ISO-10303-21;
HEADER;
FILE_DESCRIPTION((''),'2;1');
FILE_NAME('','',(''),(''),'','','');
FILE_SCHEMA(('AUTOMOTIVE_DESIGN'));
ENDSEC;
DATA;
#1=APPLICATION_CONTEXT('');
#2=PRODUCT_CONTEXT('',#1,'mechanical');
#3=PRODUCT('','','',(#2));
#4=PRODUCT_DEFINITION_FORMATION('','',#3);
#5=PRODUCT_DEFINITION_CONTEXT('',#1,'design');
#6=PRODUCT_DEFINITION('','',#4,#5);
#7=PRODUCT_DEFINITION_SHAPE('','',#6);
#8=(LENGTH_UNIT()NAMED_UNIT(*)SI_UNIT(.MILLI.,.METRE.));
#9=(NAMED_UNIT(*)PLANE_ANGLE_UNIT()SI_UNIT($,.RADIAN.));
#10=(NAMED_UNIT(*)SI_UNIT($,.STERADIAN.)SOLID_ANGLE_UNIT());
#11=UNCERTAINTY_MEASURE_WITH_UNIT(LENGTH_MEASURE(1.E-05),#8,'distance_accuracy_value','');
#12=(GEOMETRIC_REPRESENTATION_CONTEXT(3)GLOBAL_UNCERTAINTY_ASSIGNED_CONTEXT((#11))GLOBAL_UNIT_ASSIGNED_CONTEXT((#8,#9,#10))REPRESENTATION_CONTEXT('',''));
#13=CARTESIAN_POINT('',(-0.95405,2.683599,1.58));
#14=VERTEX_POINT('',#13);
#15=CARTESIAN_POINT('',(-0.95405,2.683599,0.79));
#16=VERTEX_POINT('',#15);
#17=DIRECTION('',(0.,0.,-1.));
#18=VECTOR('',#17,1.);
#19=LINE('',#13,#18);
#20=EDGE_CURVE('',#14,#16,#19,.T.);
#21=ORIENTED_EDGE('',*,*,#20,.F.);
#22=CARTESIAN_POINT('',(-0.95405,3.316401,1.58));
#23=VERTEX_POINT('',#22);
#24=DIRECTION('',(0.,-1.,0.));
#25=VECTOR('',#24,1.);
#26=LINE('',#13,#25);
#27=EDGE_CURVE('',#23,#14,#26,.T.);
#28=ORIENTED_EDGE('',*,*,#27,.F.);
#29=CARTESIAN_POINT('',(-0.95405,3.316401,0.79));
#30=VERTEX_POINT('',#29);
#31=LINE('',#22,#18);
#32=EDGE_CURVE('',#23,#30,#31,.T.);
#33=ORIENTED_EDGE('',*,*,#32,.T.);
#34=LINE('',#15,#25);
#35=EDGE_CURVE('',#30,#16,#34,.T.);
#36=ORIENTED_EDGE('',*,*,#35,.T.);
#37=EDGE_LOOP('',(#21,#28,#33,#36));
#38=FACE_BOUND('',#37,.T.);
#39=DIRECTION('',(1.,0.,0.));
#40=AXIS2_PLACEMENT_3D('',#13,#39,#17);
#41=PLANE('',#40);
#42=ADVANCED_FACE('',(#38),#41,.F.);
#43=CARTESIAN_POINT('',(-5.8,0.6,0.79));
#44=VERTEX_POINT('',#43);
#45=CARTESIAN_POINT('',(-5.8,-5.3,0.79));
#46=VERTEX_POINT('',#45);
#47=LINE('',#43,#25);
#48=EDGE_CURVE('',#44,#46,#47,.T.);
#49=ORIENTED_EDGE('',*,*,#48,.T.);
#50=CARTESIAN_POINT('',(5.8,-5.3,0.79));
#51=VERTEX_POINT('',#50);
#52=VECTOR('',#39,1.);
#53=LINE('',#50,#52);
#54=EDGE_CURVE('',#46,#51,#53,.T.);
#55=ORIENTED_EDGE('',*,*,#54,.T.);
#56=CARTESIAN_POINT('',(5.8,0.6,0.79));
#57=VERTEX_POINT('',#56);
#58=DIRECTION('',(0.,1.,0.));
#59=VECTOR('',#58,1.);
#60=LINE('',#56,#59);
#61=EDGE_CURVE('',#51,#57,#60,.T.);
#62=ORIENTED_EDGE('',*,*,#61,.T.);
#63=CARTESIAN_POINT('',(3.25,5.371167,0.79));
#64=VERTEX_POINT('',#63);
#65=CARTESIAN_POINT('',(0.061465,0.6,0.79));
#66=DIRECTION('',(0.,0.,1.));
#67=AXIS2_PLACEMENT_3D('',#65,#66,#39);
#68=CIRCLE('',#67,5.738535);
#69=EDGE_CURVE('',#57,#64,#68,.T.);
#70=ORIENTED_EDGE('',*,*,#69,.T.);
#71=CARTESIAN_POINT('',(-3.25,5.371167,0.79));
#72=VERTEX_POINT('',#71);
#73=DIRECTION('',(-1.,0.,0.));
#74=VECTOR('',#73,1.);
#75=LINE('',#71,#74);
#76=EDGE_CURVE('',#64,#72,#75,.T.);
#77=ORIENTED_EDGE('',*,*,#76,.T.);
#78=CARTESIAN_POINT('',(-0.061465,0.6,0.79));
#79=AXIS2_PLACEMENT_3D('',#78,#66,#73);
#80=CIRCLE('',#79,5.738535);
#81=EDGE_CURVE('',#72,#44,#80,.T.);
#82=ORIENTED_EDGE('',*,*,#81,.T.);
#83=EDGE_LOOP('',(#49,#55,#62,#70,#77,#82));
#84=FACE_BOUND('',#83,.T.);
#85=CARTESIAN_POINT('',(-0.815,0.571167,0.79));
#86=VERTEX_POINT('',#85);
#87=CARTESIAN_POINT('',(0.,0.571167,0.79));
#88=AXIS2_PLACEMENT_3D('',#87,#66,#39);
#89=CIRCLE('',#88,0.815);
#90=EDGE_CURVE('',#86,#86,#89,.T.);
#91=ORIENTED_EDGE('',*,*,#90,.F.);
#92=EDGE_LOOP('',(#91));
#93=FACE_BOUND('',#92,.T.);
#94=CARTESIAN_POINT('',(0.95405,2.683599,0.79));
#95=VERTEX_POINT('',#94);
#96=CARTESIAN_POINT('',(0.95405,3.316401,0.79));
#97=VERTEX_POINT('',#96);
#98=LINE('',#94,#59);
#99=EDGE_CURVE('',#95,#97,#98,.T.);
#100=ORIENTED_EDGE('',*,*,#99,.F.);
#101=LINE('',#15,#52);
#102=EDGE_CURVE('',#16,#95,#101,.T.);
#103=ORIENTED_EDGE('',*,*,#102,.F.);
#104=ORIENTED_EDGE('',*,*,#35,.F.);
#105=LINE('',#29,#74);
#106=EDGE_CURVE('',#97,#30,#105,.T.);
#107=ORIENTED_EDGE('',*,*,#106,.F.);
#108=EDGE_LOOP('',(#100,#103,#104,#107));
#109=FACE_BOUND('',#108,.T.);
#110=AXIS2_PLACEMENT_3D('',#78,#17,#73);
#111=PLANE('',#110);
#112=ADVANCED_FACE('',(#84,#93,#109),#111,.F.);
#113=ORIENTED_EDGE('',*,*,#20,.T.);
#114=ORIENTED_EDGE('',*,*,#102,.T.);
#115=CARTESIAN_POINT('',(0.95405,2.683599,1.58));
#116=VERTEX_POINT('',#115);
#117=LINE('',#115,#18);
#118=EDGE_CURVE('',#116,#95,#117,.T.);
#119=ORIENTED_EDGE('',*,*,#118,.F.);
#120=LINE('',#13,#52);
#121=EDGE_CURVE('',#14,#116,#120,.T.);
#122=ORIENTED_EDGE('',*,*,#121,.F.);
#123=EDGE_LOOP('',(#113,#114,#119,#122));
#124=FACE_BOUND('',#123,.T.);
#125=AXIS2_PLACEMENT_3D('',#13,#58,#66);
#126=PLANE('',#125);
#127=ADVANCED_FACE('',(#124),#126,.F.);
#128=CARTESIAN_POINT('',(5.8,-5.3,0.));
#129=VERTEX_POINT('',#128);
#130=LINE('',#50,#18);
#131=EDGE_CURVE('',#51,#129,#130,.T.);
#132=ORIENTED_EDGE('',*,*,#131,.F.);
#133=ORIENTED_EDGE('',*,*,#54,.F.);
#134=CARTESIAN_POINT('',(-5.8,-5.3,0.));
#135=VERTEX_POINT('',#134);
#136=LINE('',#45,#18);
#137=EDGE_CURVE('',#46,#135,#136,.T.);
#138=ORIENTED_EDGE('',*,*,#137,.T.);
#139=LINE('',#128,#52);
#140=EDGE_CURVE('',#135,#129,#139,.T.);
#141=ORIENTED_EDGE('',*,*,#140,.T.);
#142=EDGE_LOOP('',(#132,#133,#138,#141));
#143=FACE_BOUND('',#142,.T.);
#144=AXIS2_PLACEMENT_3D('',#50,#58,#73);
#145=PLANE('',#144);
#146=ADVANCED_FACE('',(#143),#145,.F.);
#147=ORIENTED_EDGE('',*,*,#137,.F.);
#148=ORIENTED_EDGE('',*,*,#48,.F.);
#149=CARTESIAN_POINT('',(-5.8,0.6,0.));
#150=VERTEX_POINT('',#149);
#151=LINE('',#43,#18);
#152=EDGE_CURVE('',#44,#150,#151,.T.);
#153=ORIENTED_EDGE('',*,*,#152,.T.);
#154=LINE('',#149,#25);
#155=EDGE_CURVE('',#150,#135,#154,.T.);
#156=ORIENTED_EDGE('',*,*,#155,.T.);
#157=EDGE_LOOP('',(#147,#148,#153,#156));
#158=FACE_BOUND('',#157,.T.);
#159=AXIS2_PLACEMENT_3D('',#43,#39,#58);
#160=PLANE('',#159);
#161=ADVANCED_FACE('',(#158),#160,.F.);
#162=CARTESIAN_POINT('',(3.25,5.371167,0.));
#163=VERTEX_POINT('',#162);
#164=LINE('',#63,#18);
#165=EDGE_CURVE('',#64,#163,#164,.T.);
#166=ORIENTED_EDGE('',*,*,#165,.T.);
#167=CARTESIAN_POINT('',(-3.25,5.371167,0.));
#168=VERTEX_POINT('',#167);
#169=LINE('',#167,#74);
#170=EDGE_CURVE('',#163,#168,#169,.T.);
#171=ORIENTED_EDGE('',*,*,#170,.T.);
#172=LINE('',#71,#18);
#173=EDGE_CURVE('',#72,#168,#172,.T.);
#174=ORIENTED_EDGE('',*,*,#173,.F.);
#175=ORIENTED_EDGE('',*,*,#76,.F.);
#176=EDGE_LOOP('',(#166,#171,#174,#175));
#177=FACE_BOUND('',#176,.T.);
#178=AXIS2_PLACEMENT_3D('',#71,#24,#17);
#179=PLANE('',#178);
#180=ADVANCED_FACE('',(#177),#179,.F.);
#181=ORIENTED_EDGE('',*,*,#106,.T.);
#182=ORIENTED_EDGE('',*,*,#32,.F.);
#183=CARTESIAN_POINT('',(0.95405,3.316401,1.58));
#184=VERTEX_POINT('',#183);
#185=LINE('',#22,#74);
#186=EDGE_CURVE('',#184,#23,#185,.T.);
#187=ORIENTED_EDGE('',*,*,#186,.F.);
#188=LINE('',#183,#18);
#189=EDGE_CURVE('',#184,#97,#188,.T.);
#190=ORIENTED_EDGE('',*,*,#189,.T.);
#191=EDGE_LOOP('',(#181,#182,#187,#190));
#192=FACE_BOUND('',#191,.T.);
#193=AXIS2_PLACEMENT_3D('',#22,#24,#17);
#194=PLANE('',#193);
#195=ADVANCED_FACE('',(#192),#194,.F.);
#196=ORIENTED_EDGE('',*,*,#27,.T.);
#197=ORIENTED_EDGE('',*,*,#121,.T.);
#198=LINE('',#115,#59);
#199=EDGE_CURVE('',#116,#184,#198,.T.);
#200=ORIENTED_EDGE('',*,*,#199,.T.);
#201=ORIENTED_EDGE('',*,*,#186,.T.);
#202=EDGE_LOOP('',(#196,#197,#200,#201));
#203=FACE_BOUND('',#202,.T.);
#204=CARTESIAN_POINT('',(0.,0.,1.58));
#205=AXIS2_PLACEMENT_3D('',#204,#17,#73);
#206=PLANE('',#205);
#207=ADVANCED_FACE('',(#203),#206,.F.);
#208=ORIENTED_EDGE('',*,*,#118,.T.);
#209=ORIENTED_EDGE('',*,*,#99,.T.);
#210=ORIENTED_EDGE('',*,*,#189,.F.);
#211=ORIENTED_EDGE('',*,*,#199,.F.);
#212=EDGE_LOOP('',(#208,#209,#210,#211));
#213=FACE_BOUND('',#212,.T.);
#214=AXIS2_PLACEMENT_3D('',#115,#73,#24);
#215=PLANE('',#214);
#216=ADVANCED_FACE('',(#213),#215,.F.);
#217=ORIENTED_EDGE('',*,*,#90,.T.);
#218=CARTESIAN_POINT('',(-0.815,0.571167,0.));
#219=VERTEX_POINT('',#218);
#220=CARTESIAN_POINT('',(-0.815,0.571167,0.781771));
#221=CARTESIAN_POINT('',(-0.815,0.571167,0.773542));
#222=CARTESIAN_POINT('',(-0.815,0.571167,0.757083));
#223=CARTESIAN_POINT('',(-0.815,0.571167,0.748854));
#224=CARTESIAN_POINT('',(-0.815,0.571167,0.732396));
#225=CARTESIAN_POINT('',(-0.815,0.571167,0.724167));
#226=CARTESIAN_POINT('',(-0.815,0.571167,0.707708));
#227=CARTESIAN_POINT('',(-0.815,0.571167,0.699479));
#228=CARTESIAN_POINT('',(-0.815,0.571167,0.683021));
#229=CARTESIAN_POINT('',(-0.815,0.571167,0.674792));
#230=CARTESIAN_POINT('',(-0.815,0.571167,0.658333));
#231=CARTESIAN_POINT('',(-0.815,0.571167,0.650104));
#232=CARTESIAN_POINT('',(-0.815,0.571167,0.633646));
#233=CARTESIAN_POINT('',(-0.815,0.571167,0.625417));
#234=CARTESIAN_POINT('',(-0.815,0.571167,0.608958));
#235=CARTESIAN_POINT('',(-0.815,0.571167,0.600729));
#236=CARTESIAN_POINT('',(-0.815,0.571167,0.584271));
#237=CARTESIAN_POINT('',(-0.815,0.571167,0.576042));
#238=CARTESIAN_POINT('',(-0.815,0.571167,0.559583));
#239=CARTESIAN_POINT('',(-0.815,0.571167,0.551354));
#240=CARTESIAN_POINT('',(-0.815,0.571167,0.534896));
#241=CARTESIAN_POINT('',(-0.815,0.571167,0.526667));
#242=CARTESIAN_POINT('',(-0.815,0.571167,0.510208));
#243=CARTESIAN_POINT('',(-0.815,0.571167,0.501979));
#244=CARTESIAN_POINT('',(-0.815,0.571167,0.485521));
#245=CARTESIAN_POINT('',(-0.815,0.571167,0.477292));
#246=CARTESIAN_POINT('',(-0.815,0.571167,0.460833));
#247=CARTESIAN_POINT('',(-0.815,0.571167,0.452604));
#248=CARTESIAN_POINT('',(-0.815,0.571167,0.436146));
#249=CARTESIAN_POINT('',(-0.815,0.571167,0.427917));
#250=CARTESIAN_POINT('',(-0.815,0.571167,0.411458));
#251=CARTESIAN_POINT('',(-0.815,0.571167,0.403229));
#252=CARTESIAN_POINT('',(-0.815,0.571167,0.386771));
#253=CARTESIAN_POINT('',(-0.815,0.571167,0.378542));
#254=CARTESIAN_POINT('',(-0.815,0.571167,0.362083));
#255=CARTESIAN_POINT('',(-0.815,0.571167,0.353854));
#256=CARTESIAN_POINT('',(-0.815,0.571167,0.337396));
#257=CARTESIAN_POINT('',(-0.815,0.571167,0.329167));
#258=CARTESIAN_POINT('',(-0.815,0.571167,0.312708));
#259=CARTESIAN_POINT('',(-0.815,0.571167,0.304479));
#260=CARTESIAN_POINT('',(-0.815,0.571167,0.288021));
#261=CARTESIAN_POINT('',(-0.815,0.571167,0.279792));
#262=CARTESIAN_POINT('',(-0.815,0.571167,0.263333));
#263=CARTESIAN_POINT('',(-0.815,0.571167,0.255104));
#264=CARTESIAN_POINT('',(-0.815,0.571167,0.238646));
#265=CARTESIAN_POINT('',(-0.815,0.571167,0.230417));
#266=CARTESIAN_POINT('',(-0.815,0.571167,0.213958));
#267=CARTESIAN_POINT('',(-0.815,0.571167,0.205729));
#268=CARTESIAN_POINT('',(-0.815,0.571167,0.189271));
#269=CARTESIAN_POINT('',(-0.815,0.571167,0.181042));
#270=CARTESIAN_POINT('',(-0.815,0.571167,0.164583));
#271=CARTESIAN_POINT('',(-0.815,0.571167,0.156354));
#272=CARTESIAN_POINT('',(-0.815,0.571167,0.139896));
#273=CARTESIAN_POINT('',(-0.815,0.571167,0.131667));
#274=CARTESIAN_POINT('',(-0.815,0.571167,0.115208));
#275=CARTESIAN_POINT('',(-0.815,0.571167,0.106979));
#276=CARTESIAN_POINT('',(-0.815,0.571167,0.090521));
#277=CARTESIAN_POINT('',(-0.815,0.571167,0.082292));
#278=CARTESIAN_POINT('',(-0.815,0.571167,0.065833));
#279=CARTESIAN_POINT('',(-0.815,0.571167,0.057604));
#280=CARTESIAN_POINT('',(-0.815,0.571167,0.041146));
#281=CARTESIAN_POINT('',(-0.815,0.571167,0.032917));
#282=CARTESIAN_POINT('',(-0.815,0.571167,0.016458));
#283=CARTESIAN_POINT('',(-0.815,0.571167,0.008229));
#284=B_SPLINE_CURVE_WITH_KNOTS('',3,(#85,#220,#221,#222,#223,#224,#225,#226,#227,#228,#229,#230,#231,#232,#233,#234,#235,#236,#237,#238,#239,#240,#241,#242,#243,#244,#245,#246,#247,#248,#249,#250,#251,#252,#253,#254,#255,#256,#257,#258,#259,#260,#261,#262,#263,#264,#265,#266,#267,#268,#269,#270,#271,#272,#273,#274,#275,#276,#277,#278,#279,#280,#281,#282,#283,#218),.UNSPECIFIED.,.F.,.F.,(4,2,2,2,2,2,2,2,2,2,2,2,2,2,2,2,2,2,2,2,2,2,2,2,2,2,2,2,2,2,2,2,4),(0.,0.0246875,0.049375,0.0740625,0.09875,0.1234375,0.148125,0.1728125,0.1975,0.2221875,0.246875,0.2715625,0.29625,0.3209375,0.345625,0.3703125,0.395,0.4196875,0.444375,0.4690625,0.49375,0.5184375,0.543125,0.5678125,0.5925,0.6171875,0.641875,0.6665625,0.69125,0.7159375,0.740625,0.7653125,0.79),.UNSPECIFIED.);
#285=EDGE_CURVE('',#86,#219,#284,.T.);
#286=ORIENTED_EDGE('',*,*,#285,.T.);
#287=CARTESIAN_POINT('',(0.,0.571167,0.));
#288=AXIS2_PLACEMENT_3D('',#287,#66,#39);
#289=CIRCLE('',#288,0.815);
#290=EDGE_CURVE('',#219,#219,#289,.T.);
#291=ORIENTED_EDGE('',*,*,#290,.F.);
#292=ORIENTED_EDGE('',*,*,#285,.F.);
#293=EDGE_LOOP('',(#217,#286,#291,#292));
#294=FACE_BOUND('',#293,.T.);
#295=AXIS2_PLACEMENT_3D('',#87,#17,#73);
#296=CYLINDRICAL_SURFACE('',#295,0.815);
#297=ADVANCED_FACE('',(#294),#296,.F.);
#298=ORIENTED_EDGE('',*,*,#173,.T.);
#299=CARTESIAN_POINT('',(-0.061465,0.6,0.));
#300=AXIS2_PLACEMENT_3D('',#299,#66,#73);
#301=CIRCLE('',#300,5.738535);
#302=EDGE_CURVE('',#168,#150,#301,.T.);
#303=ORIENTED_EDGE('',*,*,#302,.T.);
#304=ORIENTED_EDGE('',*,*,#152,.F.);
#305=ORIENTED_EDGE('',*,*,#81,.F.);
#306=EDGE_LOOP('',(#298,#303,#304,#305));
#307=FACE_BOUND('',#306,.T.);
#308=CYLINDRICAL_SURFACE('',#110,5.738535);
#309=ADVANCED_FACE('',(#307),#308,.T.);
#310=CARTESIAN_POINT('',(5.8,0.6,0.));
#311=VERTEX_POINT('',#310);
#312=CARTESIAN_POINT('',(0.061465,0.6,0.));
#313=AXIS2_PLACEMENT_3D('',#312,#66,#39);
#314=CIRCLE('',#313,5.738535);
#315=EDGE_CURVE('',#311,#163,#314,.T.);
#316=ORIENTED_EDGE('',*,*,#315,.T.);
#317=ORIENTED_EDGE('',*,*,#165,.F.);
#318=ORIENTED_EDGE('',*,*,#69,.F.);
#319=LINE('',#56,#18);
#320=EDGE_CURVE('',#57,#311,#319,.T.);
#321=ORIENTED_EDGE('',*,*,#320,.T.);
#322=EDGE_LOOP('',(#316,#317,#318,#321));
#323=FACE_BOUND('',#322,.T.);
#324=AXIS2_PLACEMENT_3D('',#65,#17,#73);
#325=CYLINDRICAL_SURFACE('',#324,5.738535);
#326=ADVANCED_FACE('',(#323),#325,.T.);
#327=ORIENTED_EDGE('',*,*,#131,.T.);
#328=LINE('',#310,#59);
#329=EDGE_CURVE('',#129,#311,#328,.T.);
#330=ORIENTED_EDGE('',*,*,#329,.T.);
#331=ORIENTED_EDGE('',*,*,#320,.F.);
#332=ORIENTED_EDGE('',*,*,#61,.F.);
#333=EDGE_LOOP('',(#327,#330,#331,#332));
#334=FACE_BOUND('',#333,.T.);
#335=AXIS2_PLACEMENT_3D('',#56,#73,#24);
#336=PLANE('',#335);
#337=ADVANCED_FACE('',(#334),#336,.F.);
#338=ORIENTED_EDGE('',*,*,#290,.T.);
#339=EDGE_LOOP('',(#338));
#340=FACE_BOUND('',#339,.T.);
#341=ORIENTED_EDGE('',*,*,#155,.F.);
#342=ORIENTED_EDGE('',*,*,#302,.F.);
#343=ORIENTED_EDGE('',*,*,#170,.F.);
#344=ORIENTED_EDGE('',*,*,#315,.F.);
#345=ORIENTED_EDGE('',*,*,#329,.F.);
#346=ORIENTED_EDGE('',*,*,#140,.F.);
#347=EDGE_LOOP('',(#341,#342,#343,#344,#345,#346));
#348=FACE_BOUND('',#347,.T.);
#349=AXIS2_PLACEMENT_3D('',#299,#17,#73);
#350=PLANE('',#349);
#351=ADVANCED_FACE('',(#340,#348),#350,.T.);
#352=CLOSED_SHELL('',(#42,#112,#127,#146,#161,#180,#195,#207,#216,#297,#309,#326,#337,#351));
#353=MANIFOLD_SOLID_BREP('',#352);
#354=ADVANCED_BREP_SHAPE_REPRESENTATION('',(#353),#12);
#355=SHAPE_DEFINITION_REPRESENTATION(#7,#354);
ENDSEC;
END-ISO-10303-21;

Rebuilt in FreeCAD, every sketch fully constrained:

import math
import FreeCAD as App
import Part
import Sketcher

V = App.Vector


def add_polygon(sketch, points):
    """Adds a closed chain of lines whose ends are joined by coincident constraints."""
    first, n = sketch.GeometryCount, len(points)
    for a, b in zip(points, points[1:] + points[:1]):
        sketch.addGeometry(Part.LineSegment(App.Vector(*a, 0), App.Vector(*b, 0)), False)
    for i in range(n):
        sketch.addConstraint(Sketcher.Constraint("Coincident", first + i, 2, first + (i + 1) % n, 1))

doc = App.newDocument("Part")
body = doc.addObject("PartDesign::Body", "Body")

# Sketch on XY plane
sketch1 = body.newObject("Sketcher::SketchObject", "Sketch")
sketch1.AttachmentSupport = (doc.getObject("XY_Plane"), [""])
sketch1.MapMode = "FlatFace"
sketch1.addGeometry(Part.LineSegment(V(-5.8, 0.6, 0), V(-5.8, -5.3, 0)), False)
sketch1.addGeometry(Part.LineSegment(V(-5.8, -5.3, 0), V(5.8, -5.3, 0)), False)
sketch1.addGeometry(Part.LineSegment(V(5.8, -5.3, 0), V(5.8, 0.6, 0)), False)
sketch1.addGeometry(Part.ArcOfCircle(Part.Circle(V(0.061465, 0.6, 0), V(0, 0, 1), 5.738535), math.radians(0), math.radians(56.245486)), False)
sketch1.addGeometry(Part.LineSegment(V(3.25, 5.371167, 0), V(-3.25, 5.371167, 0)), False)
sketch1.addGeometry(Part.ArcOfCircle(Part.Circle(V(-0.061465, 0.6, 0), V(0, 0, 1), 5.738535), math.radians(123.754514), math.radians(180)), False)
sketch1.addGeometry(Part.Circle(V(0, 0.571167, 0), V(0, 0, 1), 0.815), False)
sketch1.addConstraint(Sketcher.Constraint("Coincident", 0, 2, 1, 1))
sketch1.addConstraint(Sketcher.Constraint("Coincident", 1, 2, 2, 1))
sketch1.addConstraint(Sketcher.Constraint("Tangent", 2, 2, 3, 1))
sketch1.addConstraint(Sketcher.Constraint("Coincident", 3, 2, 4, 1))
sketch1.addConstraint(Sketcher.Constraint("Coincident", 4, 2, 5, 1))
sketch1.addConstraint(Sketcher.Constraint("Tangent", 5, 2, 0, 1))
sketch1.addConstraint(Sketcher.Constraint("Vertical", 0))
sketch1.addConstraint(Sketcher.Constraint("Horizontal", 1))
sketch1.addConstraint(Sketcher.Constraint("Vertical", 2))
sketch1.addConstraint(Sketcher.Constraint("Horizontal", 4))
sketch1.addConstraint(Sketcher.Constraint("Equal", 3, 5))
sketch1.addConstraint(Sketcher.Constraint("Symmetric", 3, 3, 5, 3, -2))
sketch1.addConstraint(Sketcher.Constraint("PointOnObject", 6, 3, -2))
sketch1.addConstraint(Sketcher.Constraint("Diameter", 6, 1.63))
sketch1.addConstraint(Sketcher.Constraint("DistanceX", 1, 1, 1, 2, 11.6))
sketch1.addConstraint(Sketcher.Constraint("DistanceX", 4, 2, 4, 1, 6.5))
sketch1.addConstraint(Sketcher.Constraint("DistanceY", 0, 2, 0, 1, 5.9))
sketch1.addConstraint(Sketcher.Constraint("DistanceY", -1, 1, 3, 3, 0.6))
sketch1.addConstraint(Sketcher.Constraint("DistanceY", 6, 3, 3, 2, 4.8))
sketch1.addConstraint(Sketcher.Constraint("Radius", 3, 5.738535))
pad1 = body.newObject("PartDesign::Pad", "Pad")
pad1.Profile = sketch1
pad1.Length = 0.79

# Sketch on XY plane
sketch2 = body.newObject("Sketcher::SketchObject", "Sketch001")
sketch2.AttachmentSupport = (doc.getObject("XY_Plane"), [""])
sketch2.MapMode = "FlatFace"
sketch2.AttachmentOffset = App.Placement(V(0, 0, 0.79), App.Rotation())
add_polygon(sketch2, [(-0.95405, 3.316401), (-0.95405, 2.683599), (0.95405, 2.683599), (0.95405, 3.316401)])  # lines 0-3
sketch2.addConstraint(Sketcher.Constraint("Vertical", 0))
sketch2.addConstraint(Sketcher.Constraint("Horizontal", 1))
sketch2.addConstraint(Sketcher.Constraint("Vertical", 2))
sketch2.addConstraint(Sketcher.Constraint("Horizontal", 3))
sketch2.addConstraint(Sketcher.Constraint("DistanceX", 1, 1, 1, 2, 1.9081))
sketch2.addConstraint(Sketcher.Constraint("DistanceY", -1, 1, 0, 2, 2.683599))
sketch2.addConstraint(Sketcher.Constraint("DistanceY", -1, 1, 2, 2, 3.316401))
sketch2.addConstraint(Sketcher.Constraint("DistanceX", 0, 2, -1, 1, 0.95405))
pad2 = body.newObject("PartDesign::Pad", "Pad001")
pad2.Profile = sketch2
pad2.Length = 0.79

doc.recompute()
